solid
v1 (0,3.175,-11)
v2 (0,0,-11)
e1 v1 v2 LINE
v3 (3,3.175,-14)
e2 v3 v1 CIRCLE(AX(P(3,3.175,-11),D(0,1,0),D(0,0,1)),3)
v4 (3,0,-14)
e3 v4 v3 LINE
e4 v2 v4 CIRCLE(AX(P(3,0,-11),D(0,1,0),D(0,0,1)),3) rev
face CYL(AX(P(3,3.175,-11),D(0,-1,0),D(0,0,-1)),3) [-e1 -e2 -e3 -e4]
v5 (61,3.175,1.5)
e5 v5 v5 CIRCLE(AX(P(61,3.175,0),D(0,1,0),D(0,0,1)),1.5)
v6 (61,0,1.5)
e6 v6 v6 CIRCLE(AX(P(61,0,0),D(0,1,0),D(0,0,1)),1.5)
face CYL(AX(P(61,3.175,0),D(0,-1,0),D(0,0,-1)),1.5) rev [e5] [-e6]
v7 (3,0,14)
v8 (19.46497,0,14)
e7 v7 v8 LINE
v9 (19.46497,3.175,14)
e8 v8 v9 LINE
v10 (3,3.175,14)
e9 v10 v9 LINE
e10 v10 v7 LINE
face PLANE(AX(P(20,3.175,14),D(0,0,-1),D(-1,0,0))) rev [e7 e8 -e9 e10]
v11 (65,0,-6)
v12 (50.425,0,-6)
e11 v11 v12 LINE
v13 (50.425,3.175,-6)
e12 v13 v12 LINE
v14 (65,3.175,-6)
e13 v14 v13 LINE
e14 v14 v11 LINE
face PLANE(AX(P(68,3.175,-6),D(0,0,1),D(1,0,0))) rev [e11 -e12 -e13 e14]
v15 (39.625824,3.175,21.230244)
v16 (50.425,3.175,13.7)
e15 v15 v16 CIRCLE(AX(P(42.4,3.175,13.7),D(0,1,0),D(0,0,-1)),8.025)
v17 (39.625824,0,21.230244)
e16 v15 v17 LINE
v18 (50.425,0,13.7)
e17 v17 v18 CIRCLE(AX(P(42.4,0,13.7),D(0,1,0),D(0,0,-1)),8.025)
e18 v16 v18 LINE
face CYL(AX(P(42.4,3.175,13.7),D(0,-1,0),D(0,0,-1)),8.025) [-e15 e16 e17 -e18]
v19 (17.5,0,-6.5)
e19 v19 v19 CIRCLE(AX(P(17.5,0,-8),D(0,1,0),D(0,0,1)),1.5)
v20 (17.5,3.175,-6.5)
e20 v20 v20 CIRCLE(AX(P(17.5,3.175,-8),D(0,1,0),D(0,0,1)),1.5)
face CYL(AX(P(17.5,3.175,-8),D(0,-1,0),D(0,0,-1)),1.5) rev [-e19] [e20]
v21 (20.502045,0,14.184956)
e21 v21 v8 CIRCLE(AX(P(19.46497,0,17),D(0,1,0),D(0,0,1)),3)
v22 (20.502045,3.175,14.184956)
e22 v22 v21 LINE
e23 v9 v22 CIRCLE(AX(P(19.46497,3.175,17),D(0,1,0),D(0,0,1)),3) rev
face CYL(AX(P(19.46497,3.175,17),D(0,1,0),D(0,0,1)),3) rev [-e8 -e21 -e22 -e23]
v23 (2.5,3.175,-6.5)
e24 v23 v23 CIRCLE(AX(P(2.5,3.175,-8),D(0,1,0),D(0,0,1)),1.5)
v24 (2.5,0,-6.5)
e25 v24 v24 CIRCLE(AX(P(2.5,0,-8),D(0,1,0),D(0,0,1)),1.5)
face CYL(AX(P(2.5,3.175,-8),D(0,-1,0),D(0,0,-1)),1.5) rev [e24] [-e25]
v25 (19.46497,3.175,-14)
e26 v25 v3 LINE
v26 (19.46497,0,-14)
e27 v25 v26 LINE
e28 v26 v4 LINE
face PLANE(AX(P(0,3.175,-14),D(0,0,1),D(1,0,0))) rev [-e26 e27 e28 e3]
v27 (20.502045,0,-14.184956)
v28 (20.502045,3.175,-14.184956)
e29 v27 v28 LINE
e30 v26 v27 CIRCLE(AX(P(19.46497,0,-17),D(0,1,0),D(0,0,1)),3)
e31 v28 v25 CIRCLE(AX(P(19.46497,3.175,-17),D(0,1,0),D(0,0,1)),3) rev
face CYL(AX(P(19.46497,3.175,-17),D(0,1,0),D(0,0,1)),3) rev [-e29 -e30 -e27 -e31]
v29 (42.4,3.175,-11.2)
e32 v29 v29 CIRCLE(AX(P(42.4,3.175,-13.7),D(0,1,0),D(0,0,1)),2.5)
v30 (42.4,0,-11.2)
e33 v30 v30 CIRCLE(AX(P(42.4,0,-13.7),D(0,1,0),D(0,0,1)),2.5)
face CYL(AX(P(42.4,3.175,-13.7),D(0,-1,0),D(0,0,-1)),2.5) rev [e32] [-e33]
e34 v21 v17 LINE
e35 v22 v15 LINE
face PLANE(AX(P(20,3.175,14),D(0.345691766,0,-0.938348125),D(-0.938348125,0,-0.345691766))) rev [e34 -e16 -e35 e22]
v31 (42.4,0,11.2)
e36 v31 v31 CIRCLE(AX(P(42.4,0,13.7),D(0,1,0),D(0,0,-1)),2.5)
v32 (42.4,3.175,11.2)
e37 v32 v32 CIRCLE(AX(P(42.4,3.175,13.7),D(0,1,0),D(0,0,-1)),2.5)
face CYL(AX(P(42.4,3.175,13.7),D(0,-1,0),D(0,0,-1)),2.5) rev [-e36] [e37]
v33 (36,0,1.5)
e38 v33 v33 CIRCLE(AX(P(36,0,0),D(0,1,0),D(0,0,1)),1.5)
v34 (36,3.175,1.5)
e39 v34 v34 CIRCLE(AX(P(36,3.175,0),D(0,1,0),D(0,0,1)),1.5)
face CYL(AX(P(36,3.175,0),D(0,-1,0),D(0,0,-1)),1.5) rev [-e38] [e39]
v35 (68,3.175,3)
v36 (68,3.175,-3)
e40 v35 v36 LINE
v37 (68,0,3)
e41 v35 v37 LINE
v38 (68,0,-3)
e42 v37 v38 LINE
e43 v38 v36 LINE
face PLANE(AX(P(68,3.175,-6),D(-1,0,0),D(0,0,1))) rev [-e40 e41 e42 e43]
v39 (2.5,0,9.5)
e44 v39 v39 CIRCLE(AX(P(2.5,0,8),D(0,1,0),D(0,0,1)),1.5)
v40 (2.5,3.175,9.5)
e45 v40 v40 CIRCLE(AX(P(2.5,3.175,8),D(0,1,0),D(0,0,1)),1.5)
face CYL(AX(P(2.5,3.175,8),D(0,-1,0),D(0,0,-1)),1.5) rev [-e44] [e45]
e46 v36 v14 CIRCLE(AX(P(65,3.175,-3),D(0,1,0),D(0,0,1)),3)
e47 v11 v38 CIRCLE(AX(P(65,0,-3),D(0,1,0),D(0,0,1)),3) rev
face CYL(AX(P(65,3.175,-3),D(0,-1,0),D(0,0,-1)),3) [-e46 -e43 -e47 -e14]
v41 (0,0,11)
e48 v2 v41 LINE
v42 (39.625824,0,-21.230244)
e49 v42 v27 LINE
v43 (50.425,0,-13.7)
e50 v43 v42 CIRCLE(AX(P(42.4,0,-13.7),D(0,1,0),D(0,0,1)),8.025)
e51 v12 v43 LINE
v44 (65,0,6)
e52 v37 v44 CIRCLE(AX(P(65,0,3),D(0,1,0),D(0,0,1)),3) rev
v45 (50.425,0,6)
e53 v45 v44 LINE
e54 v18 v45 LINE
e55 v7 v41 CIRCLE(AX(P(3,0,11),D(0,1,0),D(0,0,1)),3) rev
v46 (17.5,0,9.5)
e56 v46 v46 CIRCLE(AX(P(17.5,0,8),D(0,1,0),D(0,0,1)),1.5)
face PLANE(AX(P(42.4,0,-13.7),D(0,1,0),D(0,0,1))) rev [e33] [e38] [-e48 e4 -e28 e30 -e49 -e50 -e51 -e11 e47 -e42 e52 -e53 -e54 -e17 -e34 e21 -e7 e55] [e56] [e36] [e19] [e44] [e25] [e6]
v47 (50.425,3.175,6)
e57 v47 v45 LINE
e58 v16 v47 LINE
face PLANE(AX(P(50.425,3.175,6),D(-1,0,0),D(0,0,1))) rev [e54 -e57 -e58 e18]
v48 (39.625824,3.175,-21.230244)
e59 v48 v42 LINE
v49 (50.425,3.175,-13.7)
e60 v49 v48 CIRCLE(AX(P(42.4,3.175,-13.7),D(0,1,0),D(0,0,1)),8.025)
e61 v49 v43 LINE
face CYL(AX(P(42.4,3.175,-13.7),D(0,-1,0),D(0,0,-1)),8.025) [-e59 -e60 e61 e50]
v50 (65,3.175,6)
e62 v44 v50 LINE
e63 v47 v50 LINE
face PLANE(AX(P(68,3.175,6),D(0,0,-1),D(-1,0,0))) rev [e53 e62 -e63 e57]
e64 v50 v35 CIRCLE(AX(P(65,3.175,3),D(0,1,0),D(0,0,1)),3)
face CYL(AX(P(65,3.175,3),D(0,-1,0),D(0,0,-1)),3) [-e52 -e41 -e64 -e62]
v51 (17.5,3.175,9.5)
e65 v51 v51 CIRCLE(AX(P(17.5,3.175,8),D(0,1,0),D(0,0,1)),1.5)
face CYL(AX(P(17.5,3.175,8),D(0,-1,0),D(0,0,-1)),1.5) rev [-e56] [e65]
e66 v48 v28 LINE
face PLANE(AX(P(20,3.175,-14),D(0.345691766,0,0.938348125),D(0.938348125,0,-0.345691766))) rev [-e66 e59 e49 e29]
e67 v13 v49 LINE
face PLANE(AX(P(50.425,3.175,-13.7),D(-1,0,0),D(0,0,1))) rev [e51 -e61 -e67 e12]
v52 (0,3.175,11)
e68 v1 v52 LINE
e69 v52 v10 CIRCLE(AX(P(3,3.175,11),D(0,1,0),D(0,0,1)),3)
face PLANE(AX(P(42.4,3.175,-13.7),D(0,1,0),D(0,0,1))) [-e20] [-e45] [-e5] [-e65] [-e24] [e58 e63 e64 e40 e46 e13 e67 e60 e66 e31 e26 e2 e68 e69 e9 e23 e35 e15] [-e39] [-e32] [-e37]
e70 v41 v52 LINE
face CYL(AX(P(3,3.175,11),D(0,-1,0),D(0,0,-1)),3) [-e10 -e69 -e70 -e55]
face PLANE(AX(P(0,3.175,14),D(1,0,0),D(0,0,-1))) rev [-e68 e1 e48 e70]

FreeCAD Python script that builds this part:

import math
import FreeCAD as App
import Part
import Sketcher

V = App.Vector
Q = App.Units.Quantity


def edges_at(feature, points):
    """Names of the edges that pass closest to the given points."""
    edges = feature.Shape.Edges
    near = lambda p: min(range(len(edges)), key=lambda i: edges[i].distToShape(Part.Vertex(*p))[0])
    return sorted({f"Edge{near(p) + 1}" for p in points})

doc = App.newDocument("Part")
params = doc.addObject("Spreadsheet::Sheet", "Params")
for row, (alias, value) in enumerate([
    ("sketch1_diameter", "5 mm"),
    ("sketch1_diameter2", "3 mm"),
    ("sketch1_width", "20 mm"),
    ("sketch1_height", "28 mm"),
    ("sketch1_height2", "12 mm"),
    ("pad1_length", "3.175 mm"),
    ("fillet_radius", "3 mm"),
], start=1):
    params.set(f"A{row}", alias)
    params.set(f"B{row}", "=" + value)
    params.setAlias(f"B{row}", alias)

body = doc.addObject("PartDesign::Body", "Body")

# Sketch on XZ plane
sketch1 = body.newObject("Sketcher::SketchObject", "Sketch")
sketch1.AttachmentSupport = (doc.getObject("XZ_Plane"), [""])
sketch1.MapMode = "FlatFace"
sketch1.addGeometry(Part.LineSegment(V(0, -14, 0), V(0, 14, 0)), False)
sketch1.addGeometry(Part.LineSegment(V(0, 14, 0), V(20, 14, 0)), False)
sketch1.addGeometry(Part.LineSegment(V(20, 14, 0), V(39.6, 21.2, 0)), False)
sketch1.addGeometry(Part.ArcOfCircle(Part.Circle(V(42.4, 13.7, 0), V(0, 0, 1), 8), math.radians(0), math.radians(110)), False)
sketch1.addGeometry(Part.LineSegment(V(50.4, 13.7, 0), V(50.4, 6, 0)), False)
sketch1.addGeometry(Part.LineSegment(V(50.4, 6, 0), V(68, 6, 0)), False)
sketch1.addGeometry(Part.LineSegment(V(68, 6, 0), V(68, -6, 0)), False)
sketch1.addGeometry(Part.LineSegment(V(68, -6, 0), V(50.4, -6, 0)), False)
sketch1.addGeometry(Part.LineSegment(V(50.4, -6, 0), V(50.4, -13.7, 0)), False)
sketch1.addGeometry(Part.ArcOfCircle(Part.Circle(V(42.4, -13.7, 0), V(0, 0, 1), 8), math.radians(-110), math.radians(0)), False)
sketch1.addGeometry(Part.LineSegment(V(39.6, -21.2, 0), V(20, -14, 0)), False)
sketch1.addGeometry(Part.LineSegment(V(20, -14, 0), V(0, -14, 0)), False)
sketch1.addGeometry(Part.Circle(V(42.4, 13.7, 0), V(0, 0, 1), 2.5), False)
sketch1.addGeometry(Part.Circle(V(17.5, 8, 0), V(0, 0, 1), 1.5), False)
sketch1.addGeometry(Part.Circle(V(2.5, 8, 0), V(0, 0, 1), 1.5), False)
sketch1.addGeometry(Part.Circle(V(61, 0, 0), V(0, 0, 1), 1.5), False)
sketch1.addGeometry(Part.Circle(V(36, 0, 0), V(0, 0, 1), 1.5), False)
sketch1.addGeometry(Part.Circle(V(42.4, -13.7, 0), V(0, 0, 1), 2.5), False)
sketch1.addGeometry(Part.Circle(V(17.5, -8, 0), V(0, 0, 1), 1.5), False)
sketch1.addGeometry(Part.Circle(V(2.5, -8, 0), V(0, 0, 1), 1.5), False)
sketch1.addConstraint(Sketcher.Constraint("Coincident", 0, 2, 1, 1))
sketch1.addConstraint(Sketcher.Constraint("Coincident", 1, 2, 2, 1))
sketch1.addConstraint(Sketcher.Constraint("Tangent", 2, 2, 3, 2))
sketch1.addConstraint(Sketcher.Constraint("Tangent", 3, 1, 4, 1))
sketch1.addConstraint(Sketcher.Constraint("Coincident", 4, 2, 5, 1))
sketch1.addConstraint(Sketcher.Constraint("Coincident", 5, 2, 6, 1))
sketch1.addConstraint(Sketcher.Constraint("Coincident", 6, 2, 7, 1))
sketch1.addConstraint(Sketcher.Constraint("Coincident", 7, 2, 8, 1))
sketch1.addConstraint(Sketcher.Constraint("Tangent", 8, 2, 9, 2))
sketch1.addConstraint(Sketcher.Constraint("Tangent", 9, 1, 10, 1))
sketch1.addConstraint(Sketcher.Constraint("Coincident", 10, 2, 11, 1))
sketch1.addConstraint(Sketcher.Constraint("Coincident", 11, 2, 0, 1))
sketch1.addConstraint(Sketcher.Constraint("Vertical", 0))
sketch1.addConstraint(Sketcher.Constraint("Horizontal", 1))
sketch1.addConstraint(Sketcher.Constraint("Vertical", 4))
sketch1.addConstraint(Sketcher.Constraint("Horizontal", 5))
sketch1.addConstraint(Sketcher.Constraint("Vertical", 6))
sketch1.addConstraint(Sketcher.Constraint("Horizontal", 7))
sketch1.addConstraint(Sketcher.Constraint("Vertical", 8))
sketch1.addConstraint(Sketcher.Constraint("Horizontal", 11))
sketch1.addConstraint(Sketcher.Constraint("Coincident", 12, 3, 3, 3))
sketch1.addConstraint(Sketcher.Constraint("Coincident", 17, 3, 9, 3))
sketch1.addConstraint(Sketcher.Constraint("Equal", 3, 9))
sketch1.addConstraint(Sketcher.Constraint("Equal", 13, 14))
sketch1.addConstraint(Sketcher.Constraint("Equal", 14, 15))
sketch1.addConstraint(Sketcher.Constraint("Equal", 15, 16))
sketch1.addConstraint(Sketcher.Constraint("Equal", 12, 17))
sketch1.addConstraint(Sketcher.Constraint("Equal", 16, 18))
sketch1.addConstraint(Sketcher.Constraint("Equal", 18, 19))
sketch1.addConstraint(Sketcher.Constraint("Symmetric", 0, 2, 11, 2, -1, 1))
sketch1.addConstraint(Sketcher.Constraint("Symmetric", 3, 3, 9, 3, -1))
sketch1.addConstraint(Sketcher.Constraint("Symmetric", 13, 3, 18, 3, -1))
sketch1.addConstraint(Sketcher.Constraint("Symmetric", 14, 3, 19, 3, -1))
sketch1.addConstraint(Sketcher.Constraint("PointOnObject", 15, 3, -1))
sketch1.addConstraint(Sketcher.Constraint("PointOnObject", 16, 3, -1))
sketch1.addConstraint(Sketcher.Constraint("Horizontal", 13, 3, 14, 3))
sketch1.addConstraint(Sketcher.Constraint("Vertical", 2, 2, 9, 1))
sketch1.addConstraint(Sketcher.Constraint("Equal", 4, 8))
sketch1.addConstraint(Sketcher.Constraint("Diameter", 12, Q("5 mm")))
sketch1.addConstraint(Sketcher.Constraint("Diameter", 13, Q("3 mm")))
sketch1.addConstraint(Sketcher.Constraint("DistanceX", 1, 1, 1, 2, Q("20 mm")))
sketch1.addConstraint(Sketcher.Constraint("DistanceY", 0, 1, 0, 2, Q("28 mm")))
sketch1.addConstraint(Sketcher.Constraint("DistanceY", 6, 2, 6, 1, Q("12 mm")))
sketch1.addConstraint(Sketcher.Constraint("DistanceY", 4, 2, 4, 1, Q("7.7 mm")))
sketch1.addConstraint(Sketcher.Constraint("DistanceY", -1, 1, 13, 3, Q("8 mm")))
sketch1.addConstraint(Sketcher.Constraint("DistanceX", -1, 1, 15, 3, Q("61 mm")))
sketch1.addConstraint(Sketcher.Constraint("DistanceX", -1, 1, 16, 3, Q("36 mm")))
sketch1.addConstraint(Sketcher.Constraint("DistanceX", -1, 1, 5, 2, Q("68 mm")))
sketch1.addConstraint(Sketcher.Constraint("Radius", 3, Q("8.025 mm")))
sketch1.addConstraint(Sketcher.Constraint("DistanceX", 14, 3, 13, 3, Q("15 mm")))
sketch1.addConstraint(Sketcher.Constraint("DistanceX", -1, 1, 3, 3, Q("42.4 mm")))
sketch1.addConstraint(Sketcher.Constraint("DistanceX", -1, 1, 13, 3, Q("17.5 mm")))
sketch1.setExpression("Constraints[38]", "Params.sketch1_diameter")
sketch1.setExpression("Constraints[39]", "Params.sketch1_diameter2")
sketch1.setExpression("Constraints[40]", "Params.sketch1_width")
sketch1.setExpression("Constraints[41]", "Params.sketch1_height")
sketch1.setExpression("Constraints[42]", "Params.sketch1_height2")
pad1 = body.newObject("PartDesign::Pad", "Pad")
pad1.Profile = sketch1
pad1.setExpression("Length", "Params.pad1_length")
pad1.Reversed = True
doc.recompute()

fillet = body.newObject("PartDesign::Fillet", "Fillet")
fillet.Base = (pad1, edges_at(pad1, [
    (0, 1.587, 14),
    (0, 1.587, -14),
    (20, 1.587, -14),
    (68, 1.587, -6),
    (68, 1.587, 6),
    (20, 1.587, 14),
]))
fillet.setExpression("Radius", "Params.fillet_radius")

doc.recompute()
